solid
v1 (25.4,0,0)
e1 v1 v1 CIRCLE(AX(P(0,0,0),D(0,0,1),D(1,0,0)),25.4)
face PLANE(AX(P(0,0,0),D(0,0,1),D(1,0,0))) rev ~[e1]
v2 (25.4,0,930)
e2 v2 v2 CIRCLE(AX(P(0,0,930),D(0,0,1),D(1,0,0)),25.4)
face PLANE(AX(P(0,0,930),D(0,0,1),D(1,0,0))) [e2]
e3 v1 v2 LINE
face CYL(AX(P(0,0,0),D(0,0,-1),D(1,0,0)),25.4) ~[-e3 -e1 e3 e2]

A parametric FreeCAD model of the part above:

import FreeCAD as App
import Part
import Sketcher

V = App.Vector
Q = App.Units.Quantity

doc = App.newDocument("Part")
params = doc.addObject("Spreadsheet::Sheet", "Params")
for row, (alias, value) in enumerate([
    ("sketch1_diameter", "50.8 mm"),
    ("pad1_length", "930 mm"),
], start=1):
    params.set(f"A{row}", alias)
    params.set(f"B{row}", "=" + value)
    params.setAlias(f"B{row}", alias)

body = doc.addObject("PartDesign::Body", "Body")

# Sketch on XY plane
sketch1 = doc.addObject("Sketcher::SketchObject", "Sketch")
body.addObject(sketch1)
sketch1.AttachmentSupport = (doc.XY_Plane, [""])
sketch1.MapMode = "FlatFace"
sketch1.addGeometry(Part.Circle(V(0, 0, 0), V(0, 0, 1), 25.4), False)
sketch1.addConstraint([
    Sketcher.Constraint("Coincident", 0, 3, -1, 1),
    Sketcher.Constraint("Diameter", 0, Q("50.8 mm")),
])
sketch1.setExpression("Constraints[1]", "Params.sketch1_diameter")
pad1 = doc.addObject("PartDesign::Pad", "Pad")
body.addObject(pad1)
pad1.Profile = sketch1
pad1.setExpression("Length", "Params.pad1_length")

doc.recompute()
